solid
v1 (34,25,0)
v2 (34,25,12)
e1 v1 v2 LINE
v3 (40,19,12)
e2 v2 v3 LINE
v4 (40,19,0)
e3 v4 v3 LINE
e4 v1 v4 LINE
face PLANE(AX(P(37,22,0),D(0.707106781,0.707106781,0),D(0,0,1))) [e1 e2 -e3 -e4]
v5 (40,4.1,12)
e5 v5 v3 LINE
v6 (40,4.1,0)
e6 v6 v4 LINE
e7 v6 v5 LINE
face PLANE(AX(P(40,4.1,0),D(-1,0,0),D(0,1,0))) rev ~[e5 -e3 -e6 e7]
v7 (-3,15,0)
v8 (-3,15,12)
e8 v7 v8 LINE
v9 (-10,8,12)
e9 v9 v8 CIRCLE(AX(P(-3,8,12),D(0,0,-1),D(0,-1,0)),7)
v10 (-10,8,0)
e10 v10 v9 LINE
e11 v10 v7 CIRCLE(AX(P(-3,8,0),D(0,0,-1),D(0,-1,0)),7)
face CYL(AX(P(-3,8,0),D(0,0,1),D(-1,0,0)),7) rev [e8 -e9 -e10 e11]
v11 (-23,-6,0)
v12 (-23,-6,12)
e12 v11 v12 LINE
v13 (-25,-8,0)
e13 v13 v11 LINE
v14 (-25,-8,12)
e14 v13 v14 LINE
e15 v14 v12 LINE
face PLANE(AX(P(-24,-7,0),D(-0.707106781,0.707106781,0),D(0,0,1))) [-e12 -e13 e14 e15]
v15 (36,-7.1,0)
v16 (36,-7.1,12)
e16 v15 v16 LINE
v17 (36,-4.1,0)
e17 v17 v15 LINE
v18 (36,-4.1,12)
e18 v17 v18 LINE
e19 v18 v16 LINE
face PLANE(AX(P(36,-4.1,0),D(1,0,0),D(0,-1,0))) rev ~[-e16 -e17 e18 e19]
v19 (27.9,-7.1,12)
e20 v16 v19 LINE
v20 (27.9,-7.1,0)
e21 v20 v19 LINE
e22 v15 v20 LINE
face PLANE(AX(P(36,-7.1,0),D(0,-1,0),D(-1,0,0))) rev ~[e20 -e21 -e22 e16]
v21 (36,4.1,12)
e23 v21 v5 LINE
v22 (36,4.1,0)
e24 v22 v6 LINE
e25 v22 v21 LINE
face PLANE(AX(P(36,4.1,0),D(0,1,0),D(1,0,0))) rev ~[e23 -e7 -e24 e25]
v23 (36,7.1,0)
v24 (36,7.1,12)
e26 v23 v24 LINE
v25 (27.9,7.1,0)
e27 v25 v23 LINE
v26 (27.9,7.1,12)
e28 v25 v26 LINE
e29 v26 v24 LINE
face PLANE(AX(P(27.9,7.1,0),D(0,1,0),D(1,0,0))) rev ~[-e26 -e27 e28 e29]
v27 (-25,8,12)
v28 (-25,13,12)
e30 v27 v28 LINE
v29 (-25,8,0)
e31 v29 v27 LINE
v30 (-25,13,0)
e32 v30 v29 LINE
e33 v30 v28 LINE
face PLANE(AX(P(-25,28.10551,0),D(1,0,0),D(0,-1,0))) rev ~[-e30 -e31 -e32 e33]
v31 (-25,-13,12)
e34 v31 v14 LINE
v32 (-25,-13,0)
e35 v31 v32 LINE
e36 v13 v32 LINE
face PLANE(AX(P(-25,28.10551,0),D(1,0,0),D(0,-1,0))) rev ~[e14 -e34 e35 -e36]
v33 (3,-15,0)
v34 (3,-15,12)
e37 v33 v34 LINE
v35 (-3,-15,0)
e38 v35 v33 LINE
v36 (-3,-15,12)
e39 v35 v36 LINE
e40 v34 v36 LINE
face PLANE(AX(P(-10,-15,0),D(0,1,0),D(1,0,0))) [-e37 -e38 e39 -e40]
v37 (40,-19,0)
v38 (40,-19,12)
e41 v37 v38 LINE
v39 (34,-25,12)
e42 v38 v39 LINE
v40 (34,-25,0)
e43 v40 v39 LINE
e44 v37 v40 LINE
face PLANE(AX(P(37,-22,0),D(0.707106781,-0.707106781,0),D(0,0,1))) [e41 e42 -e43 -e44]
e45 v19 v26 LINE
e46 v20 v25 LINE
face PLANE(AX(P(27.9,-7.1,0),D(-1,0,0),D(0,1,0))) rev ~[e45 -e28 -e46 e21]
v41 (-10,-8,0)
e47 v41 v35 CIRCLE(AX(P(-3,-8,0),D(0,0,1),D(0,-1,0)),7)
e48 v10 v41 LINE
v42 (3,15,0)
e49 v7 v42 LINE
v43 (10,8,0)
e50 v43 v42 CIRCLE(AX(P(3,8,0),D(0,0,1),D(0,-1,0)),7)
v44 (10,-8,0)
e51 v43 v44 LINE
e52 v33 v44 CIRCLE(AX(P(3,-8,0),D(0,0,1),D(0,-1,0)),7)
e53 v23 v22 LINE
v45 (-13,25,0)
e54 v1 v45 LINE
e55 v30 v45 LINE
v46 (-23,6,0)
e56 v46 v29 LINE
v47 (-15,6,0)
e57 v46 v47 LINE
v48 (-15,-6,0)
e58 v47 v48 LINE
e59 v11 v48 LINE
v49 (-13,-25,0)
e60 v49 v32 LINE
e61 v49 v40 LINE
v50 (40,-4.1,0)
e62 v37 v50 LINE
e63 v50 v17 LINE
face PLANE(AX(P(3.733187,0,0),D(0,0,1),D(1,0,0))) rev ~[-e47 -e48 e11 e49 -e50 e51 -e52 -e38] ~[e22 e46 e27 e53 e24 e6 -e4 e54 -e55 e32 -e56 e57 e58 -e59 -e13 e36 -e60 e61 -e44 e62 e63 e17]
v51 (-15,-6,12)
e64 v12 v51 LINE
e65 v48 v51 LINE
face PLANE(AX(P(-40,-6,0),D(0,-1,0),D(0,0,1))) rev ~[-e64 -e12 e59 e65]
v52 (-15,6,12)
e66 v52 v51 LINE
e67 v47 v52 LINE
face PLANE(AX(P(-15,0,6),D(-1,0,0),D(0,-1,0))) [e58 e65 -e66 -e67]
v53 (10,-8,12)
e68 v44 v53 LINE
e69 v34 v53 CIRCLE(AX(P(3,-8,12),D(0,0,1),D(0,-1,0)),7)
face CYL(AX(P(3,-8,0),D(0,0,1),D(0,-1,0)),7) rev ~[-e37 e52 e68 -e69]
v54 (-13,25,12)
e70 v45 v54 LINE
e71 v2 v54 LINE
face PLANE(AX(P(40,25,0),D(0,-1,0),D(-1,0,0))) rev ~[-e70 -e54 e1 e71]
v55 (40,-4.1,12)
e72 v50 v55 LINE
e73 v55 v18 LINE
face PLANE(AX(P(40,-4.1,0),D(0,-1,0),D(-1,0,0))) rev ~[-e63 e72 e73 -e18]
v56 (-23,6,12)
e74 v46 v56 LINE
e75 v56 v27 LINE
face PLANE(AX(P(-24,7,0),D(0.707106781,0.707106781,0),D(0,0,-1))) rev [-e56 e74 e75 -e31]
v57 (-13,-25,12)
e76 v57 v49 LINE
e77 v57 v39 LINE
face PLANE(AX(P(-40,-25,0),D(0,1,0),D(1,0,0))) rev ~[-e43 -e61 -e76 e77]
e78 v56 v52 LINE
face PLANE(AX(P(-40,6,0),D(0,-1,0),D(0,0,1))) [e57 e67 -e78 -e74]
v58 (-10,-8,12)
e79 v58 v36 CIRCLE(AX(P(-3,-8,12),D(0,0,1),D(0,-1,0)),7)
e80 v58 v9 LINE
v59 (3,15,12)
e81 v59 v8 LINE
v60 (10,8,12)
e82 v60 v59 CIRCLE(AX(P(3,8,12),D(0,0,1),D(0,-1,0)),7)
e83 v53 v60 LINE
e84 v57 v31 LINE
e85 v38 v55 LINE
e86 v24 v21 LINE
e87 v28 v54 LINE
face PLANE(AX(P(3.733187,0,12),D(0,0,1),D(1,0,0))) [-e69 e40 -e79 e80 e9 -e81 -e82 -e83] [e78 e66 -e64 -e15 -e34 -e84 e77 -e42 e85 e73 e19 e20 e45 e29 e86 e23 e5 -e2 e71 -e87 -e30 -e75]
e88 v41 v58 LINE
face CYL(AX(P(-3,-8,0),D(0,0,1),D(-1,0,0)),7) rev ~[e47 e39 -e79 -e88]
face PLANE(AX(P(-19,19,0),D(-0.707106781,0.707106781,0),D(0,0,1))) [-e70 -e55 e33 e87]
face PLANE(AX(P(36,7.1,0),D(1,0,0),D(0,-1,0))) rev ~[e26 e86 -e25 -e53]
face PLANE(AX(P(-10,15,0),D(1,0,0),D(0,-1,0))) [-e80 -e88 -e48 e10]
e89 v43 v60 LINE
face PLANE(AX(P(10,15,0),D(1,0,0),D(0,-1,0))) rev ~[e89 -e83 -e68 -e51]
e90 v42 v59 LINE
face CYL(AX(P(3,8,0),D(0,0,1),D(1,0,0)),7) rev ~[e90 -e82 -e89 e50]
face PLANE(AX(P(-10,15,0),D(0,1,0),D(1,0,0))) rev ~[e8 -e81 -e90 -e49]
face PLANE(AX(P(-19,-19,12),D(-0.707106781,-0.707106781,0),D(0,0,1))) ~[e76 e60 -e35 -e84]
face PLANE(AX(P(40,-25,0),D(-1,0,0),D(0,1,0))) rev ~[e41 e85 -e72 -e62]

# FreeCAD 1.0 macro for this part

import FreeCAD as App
import Part
import Sketcher
from FreeCAD import Vector


def edges_at(feature, points):
    """Names of the edges that pass closest to the given points."""
    edges = feature.Shape.Edges
    near = lambda p: min(range(len(edges)), key=lambda i: edges[i].distToShape(Part.Vertex(*p))[0])
    return sorted({f"Edge{near(p) + 1}" for p in points})

doc = App.newDocument("Part")
params = doc.addObject("Spreadsheet::Sheet", "Params")
for row, (alias, value) in enumerate([
    ("sketch1_width", "80 mm"),
    ("sketch1_width2", "4 mm"),
    ("sketch1_height", "50 mm"),
    ("sketch1_height2", "3 mm"),
    ("sketch1_width3", "8.1 mm"),
    ("pad1_length", "12 mm"),
    ("sketch2_width", "12 mm"),
    ("pocket1_length", "25 mm"),
    ("chamfer_size", "6 mm"),
    ("sketch3_width", "20 mm"),
    ("sketch3_height", "30 mm"),
    ("pocket2_length", "30 mm"),
    ("fillet_radius", "7 mm"),
    ("pocket3_length", "25 mm"),
    ("chamfer2_size", "12 mm"),
    ("chamfer3_size", "2 mm"),
], start=1):
    params.set(f"A{row}", alias)
    params.set(f"B{row}", "=" + value)
    params.setAlias(f"B{row}", alias)

body = doc.addObject("PartDesign::Body", "Body")

# Sketch on XY plane
sketch1 = body.newObject("Sketcher::SketchObject", "Sketch")
sketch1.AttachmentSupport = (doc.getObject("XY_Plane"), [""])
sketch1.MapMode = "FlatFace"
sketch1.addGeometry(Part.LineSegment(Vector(40, 25, 0), Vector(-40, 25, 0)), False)
sketch1.addGeometry(Part.LineSegment(Vector(-40, 25, 0), Vector(-40, -25, 0)), False)
sketch1.addGeometry(Part.LineSegment(Vector(-40, -25, 0), Vector(40, -25, 0)), False)
sketch1.addGeometry(Part.LineSegment(Vector(40, -25, 0), Vector(40, -4.1, 0)), False)
sketch1.addGeometry(Part.LineSegment(Vector(40, -4.1, 0), Vector(36, -4.1, 0)), False)
sketch1.addGeometry(Part.LineSegment(Vector(36, -4.1, 0), Vector(36, -7.1, 0)), False)
sketch1.addGeometry(Part.LineSegment(Vector(36, -7.1, 0), Vector(27.9, -7.1, 0)), False)
sketch1.addGeometry(Part.LineSegment(Vector(27.9, -7.1, 0), Vector(27.9, 7.1, 0)), False)
sketch1.addGeometry(Part.LineSegment(Vector(27.9, 7.1, 0), Vector(36, 7.1, 0)), False)
sketch1.addGeometry(Part.LineSegment(Vector(36, 7.1, 0), Vector(36, 4.1, 0)), False)
sketch1.addGeometry(Part.LineSegment(Vector(36, 4.1, 0), Vector(40, 4.1, 0)), False)
sketch1.addGeometry(Part.LineSegment(Vector(40, 4.1, 0), Vector(40, 25, 0)), False)
sketch1.addConstraint(Sketcher.Constraint("Coincident", 0, 2, 1, 1))
sketch1.addConstraint(Sketcher.Constraint("Coincident", 1, 2, 2, 1))
sketch1.addConstraint(Sketcher.Constraint("Coincident", 2, 2, 3, 1))
sketch1.addConstraint(Sketcher.Constraint("Coincident", 3, 2, 4, 1))
sketch1.addConstraint(Sketcher.Constraint("Coincident", 4, 2, 5, 1))
sketch1.addConstraint(Sketcher.Constraint("Coincident", 5, 2, 6, 1))
sketch1.addConstraint(Sketcher.Constraint("Coincident", 6, 2, 7, 1))
sketch1.addConstraint(Sketcher.Constraint("Coincident", 7, 2, 8, 1))
sketch1.addConstraint(Sketcher.Constraint("Coincident", 8, 2, 9, 1))
sketch1.addConstraint(Sketcher.Constraint("Coincident", 9, 2, 10, 1))
sketch1.addConstraint(Sketcher.Constraint("Coincident", 10, 2, 11, 1))
sketch1.addConstraint(Sketcher.Constraint("Coincident", 11, 2, 0, 1))
sketch1.addConstraint(Sketcher.Constraint("Horizontal", 0))
sketch1.addConstraint(Sketcher.Constraint("Vertical", 1))
sketch1.addConstraint(Sketcher.Constraint("Horizontal", 2))
sketch1.addConstraint(Sketcher.Constraint("Vertical", 3))
sketch1.addConstraint(Sketcher.Constraint("Horizontal", 4))
sketch1.addConstraint(Sketcher.Constraint("Vertical", 5))
sketch1.addConstraint(Sketcher.Constraint("Horizontal", 6))
sketch1.addConstraint(Sketcher.Constraint("Vertical", 7))
sketch1.addConstraint(Sketcher.Constraint("Horizontal", 8))
sketch1.addConstraint(Sketcher.Constraint("Vertical", 9))
sketch1.addConstraint(Sketcher.Constraint("Horizontal", 10))
sketch1.addConstraint(Sketcher.Constraint("Vertical", 11))
sketch1.addConstraint(Sketcher.Constraint("Symmetric", 0, 2, 2, 2, -1, 1))
sketch1.addConstraint(Sketcher.Constraint("Symmetric", 5, 2, 8, 2, -1))
sketch1.addConstraint(Sketcher.Constraint("Symmetric", 3, 2, 10, 2, -1))
sketch1.addConstraint(Sketcher.Constraint("DistanceX", 0, 2, 0, 1, 80.0))
sketch1.addConstraint(Sketcher.Constraint("DistanceX", 4, 2, 4, 1, 4.0))
sketch1.addConstraint(Sketcher.Constraint("DistanceY", 1, 2, 1, 1, 50.0))
sketch1.addConstraint(Sketcher.Constraint("DistanceY", 5, 2, 5, 1, 3.0))
sketch1.addConstraint(Sketcher.Constraint("DistanceX", 6, 2, 6, 1, 8.1))
sketch1.addConstraint(Sketcher.Constraint("DistanceY", 3, 1, 3, 2, 20.9))
sketch1.setExpression("Constraints[27]", "Params.sketch1_width")
sketch1.setExpression("Constraints[28]", "Params.sketch1_width2")
sketch1.setExpression("Constraints[29]", "Params.sketch1_height")
sketch1.setExpression("Constraints[30]", "Params.sketch1_height2")
sketch1.setExpression("Constraints[31]", "Params.sketch1_width3")
pad1 = body.newObject("PartDesign::Pad", "Pad")
pad1.Profile = sketch1
pad1.setExpression("Length", "Params.pad1_length")

# Sketch on YZ plane
sketch2 = body.newObject("Sketcher::SketchObject", "Sketch001")
sketch2.AttachmentSupport = (doc.getObject("YZ_Plane"), [""])
sketch2.MapMode = "FlatFace"
sketch2.AttachmentOffset = App.Placement(Vector(0, 0, -40), App.Rotation())
sketch2.addGeometry(Part.LineSegment(Vector(6, 12, 0), Vector(6, 0, 0)), False)
sketch2.addGeometry(Part.LineSegment(Vector(6, 0, 0), Vector(-6, 0, 0)), False)
sketch2.addGeometry(Part.LineSegment(Vector(-6, 0, 0), Vector(-6, 12, 0)), False)
sketch2.addGeometry(Part.LineSegment(Vector(-6, 12, 0), Vector(6, 12, 0)), False)
sketch2.addConstraint(Sketcher.Constraint("Coincident", 0, 2, 1, 1))
sketch2.addConstraint(Sketcher.Constraint("Coincident", 1, 2, 2, 1))
sketch2.addConstraint(Sketcher.Constraint("Coincident", 2, 2, 3, 1))
sketch2.addConstraint(Sketcher.Constraint("Coincident", 3, 2, 0, 1))
sketch2.addConstraint(Sketcher.Constraint("Vertical", 0))
sketch2.addConstraint(Sketcher.Constraint("Horizontal", 1))
sketch2.addConstraint(Sketcher.Constraint("Vertical", 2))
sketch2.addConstraint(Sketcher.Constraint("Horizontal", 3))
sketch2.addConstraint(Sketcher.Constraint("Symmetric", 0, 2, 1, 2, -1, 1))
sketch2.addConstraint(Sketcher.Constraint("Equal", 3, 0))
sketch2.addConstraint(Sketcher.Constraint("DistanceX", 1, 2, 1, 1, 12.0))
sketch2.setExpression("Constraints[10]", "Params.sketch2_width")
pocket1 = body.newObject("PartDesign::Pocket", "Pocket")
pocket1.Profile = sketch2
pocket1.setExpression("Length", "Params.pocket1_length")
pocket1.Reversed = True
doc.recompute()

chamfer = body.newObject("PartDesign::Chamfer", "Chamfer")
chamfer.Base = (pocket1, edges_at(pocket1, [
    (-40, -25, 6),
    (-40, 25, 6),
    (-40, 6, 6),
    (-40, -6, 6),
    (40, -25, 6),
    (40, 25, 6),
]))
chamfer.setExpression("Size", "Params.chamfer_size")

# Sketch on XY plane
sketch3 = body.newObject("Sketcher::SketchObject", "Sketch002")
sketch3.AttachmentSupport = (doc.getObject("XY_Plane"), [""])
sketch3.MapMode = "FlatFace"
sketch3.addGeometry(Part.LineSegment(Vector(-10, -15, 0), Vector(-10, 15, 0)), False)
sketch3.addGeometry(Part.LineSegment(Vector(-10, 15, 0), Vector(10, 15, 0)), False)
sketch3.addGeometry(Part.LineSegment(Vector(10, 15, 0), Vector(10, -15, 0)), False)
sketch3.addGeometry(Part.LineSegment(Vector(10, -15, 0), Vector(-10, -15, 0)), False)
sketch3.addConstraint(Sketcher.Constraint("Coincident", 0, 2, 1, 1))
sketch3.addConstraint(Sketcher.Constraint("Coincident", 1, 2, 2, 1))
sketch3.addConstraint(Sketcher.Constraint("Coincident", 2, 2, 3, 1))
sketch3.addConstraint(Sketcher.Constraint("Coincident", 3, 2, 0, 1))
sketch3.addConstraint(Sketcher.Constraint("Vertical", 0))
sketch3.addConstraint(Sketcher.Constraint("Horizontal", 1))
sketch3.addConstraint(Sketcher.Constraint("Vertical", 2))
sketch3.addConstraint(Sketcher.Constraint("Horizontal", 3))
sketch3.addConstraint(Sketcher.Constraint("Symmetric", 0, 2, 2, 2, -1, 1))
sketch3.addConstraint(Sketcher.Constraint("DistanceX", 1, 1, 1, 2, 20.0))
sketch3.addConstraint(Sketcher.Constraint("DistanceY", 0, 1, 0, 2, 30.0))
sketch3.setExpression("Constraints[9]", "Params.sketch3_width")
sketch3.setExpression("Constraints[10]", "Params.sketch3_height")
pocket2 = body.newObject("PartDesign::Pocket", "Pocket001")
pocket2.Profile = sketch3
pocket2.setExpression("Length", "Params.pocket2_length")
pocket2.Reversed = True
doc.recompute()

fillet = body.newObject("PartDesign::Fillet", "Fillet")
fillet.Base = (pocket2, edges_at(pocket2, [
    (10, 15, 6),
    (-10, 15, 6),
    (-10, -15, 6),
    (10, -15, 6),
]))
fillet.setExpression("Radius", "Params.fillet_radius")

# Sketch on XY plane
sketch4 = body.newObject("Sketcher::SketchObject", "Sketch003")
sketch4.AttachmentSupport = (doc.getObject("XY_Plane"), [""])
sketch4.MapMode = "FlatFace"
sketch4.addGeometry(Part.LineSegment(Vector(-41.990975, 28.10551, 0), Vector(-25, 28.10551, 0)), False)
sketch4.addGeometry(Part.LineSegment(Vector(-25, 28.10551, 0), Vector(-25, -27.381077, 0)), False)
sketch4.addGeometry(Part.LineSegment(Vector(-25, -27.381077, 0), Vector(-41.990975, -27.381077, 0)), False)
sketch4.addGeometry(Part.LineSegment(Vector(-41.990975, -27.381077, 0), Vector(-41.990975, 28.10551, 0)), False)
sketch4.addConstraint(Sketcher.Constraint("Coincident", 0, 2, 1, 1))
sketch4.addConstraint(Sketcher.Constraint("Coincident", 1, 2, 2, 1))
sketch4.addConstraint(Sketcher.Constraint("Coincident", 2, 2, 3, 1))
sketch4.addConstraint(Sketcher.Constraint("Coincident", 3, 2, 0, 1))
sketch4.addConstraint(Sketcher.Constraint("Horizontal", 0))
sketch4.addConstraint(Sketcher.Constraint("Vertical", 1))
sketch4.addConstraint(Sketcher.Constraint("Horizontal", 2))
sketch4.addConstraint(Sketcher.Constraint("Vertical", 3))
sketch4.addConstraint(Sketcher.Constraint("DistanceX", 0, 2, -1, 1, 25.0))
sketch4.addConstraint(Sketcher.Constraint("DistanceX", 0, 1, 0, 2, 16.990975))
sketch4.addConstraint(Sketcher.Constraint("DistanceY", 1, 2, 1, 1, 55.486587))
sketch4.addConstraint(Sketcher.Constraint("DistanceY", -1, 1, 0, 2, 28.10551))
pocket3 = body.newObject("PartDesign::Pocket", "Pocket002")
pocket3.Profile = sketch4
pocket3.setExpression("Length", "Params.pocket3_length")
pocket3.Reversed = True
doc.recompute()

chamfer2 = body.newObject("PartDesign::Chamfer", "Chamfer001")
chamfer2.Base = (pocket3, edges_at(pocket3, [(-25, 25, 6), (-25, -25, 6)]))
chamfer2.setExpression("Size", "Params.chamfer2_size")
doc.recompute()

chamfer3 = body.newObject("PartDesign::Chamfer", "Chamfer002")
chamfer3.Base = (chamfer2, edges_at(chamfer2, [(-25, 6, 6), (-25, -6, 6)]))
chamfer3.setExpression("Size", "Params.chamfer3_size")

doc.recompute()
